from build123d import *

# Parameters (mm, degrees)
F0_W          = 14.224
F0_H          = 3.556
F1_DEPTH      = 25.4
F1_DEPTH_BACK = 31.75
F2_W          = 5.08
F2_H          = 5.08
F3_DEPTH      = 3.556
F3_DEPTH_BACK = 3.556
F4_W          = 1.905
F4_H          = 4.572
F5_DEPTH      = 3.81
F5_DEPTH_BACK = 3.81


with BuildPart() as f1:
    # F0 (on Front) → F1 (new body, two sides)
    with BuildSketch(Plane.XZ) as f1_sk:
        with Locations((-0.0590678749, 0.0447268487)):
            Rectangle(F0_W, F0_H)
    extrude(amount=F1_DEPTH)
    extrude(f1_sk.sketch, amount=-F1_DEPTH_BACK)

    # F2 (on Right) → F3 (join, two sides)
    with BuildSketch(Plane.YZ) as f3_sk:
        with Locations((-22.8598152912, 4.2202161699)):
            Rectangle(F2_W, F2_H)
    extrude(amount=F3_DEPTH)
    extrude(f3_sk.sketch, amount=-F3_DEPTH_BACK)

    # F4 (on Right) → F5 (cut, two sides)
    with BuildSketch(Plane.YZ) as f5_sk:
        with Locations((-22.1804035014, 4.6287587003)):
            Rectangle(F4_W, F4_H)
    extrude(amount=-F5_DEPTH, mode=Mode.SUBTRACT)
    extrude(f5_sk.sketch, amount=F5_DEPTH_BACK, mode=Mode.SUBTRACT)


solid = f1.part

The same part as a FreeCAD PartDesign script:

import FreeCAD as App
import Part
import Sketcher

V = App.Vector
Q = App.Units.Quantity


def add_polygon(sketch, points):
    """Adds a closed chain of lines whose ends are joined by coincident constraints."""
    first, n = sketch.GeometryCount, len(points)
    for a, b in zip(points, points[1:] + points[:1]):
        sketch.addGeometry(Part.LineSegment(App.Vector(*a, 0), App.Vector(*b, 0)), False)
    for i in range(n):
        sketch.addConstraint(Sketcher.Constraint("Coincident", first + i, 2, first + (i + 1) % n, 1))

doc = App.newDocument("Part")
params = doc.addObject("Spreadsheet::Sheet", "Params")
for row, (alias, value) in enumerate([
    ("sketch1_width", "0.56 in"),
    ("sketch1_height", "0.14 in"),
    ("pad1_length", "1 in"),
    ("pad1_length2", "1.25 in"),
    ("sketch2_width", "0.2 in"),
    ("pad2_length", "0.14 in"),
    ("pad2_length2", "0.14 in"),
    ("sketch3_height", "0.18 in"),
    ("sketch3_width", "0.075 in"),
], start=1):
    params.set(f"A{row}", alias)
    params.set(f"B{row}", "=" + value)
    params.setAlias(f"B{row}", alias)

body = doc.addObject("PartDesign::Body", "Body")

sketch1 = body.newObject("Sketcher::SketchObject", "Sketch")
sketch1.AttachmentSupport = (doc.getObject("XZ_Plane"), [""])
sketch1.MapMode = "FlatFace"
add_polygon(sketch1, [(-7.2, 1.8), (-7.2, -1.7), (7.1, -1.7), (7.1, 1.8)])
sketch1.addConstraint(Sketcher.Constraint("Vertical", 0))
sketch1.addConstraint(Sketcher.Constraint("Horizontal", 1))
sketch1.addConstraint(Sketcher.Constraint("Vertical", 2))
sketch1.addConstraint(Sketcher.Constraint("Horizontal", 3))
sketch1.addConstraint(Sketcher.Constraint("DistanceX", 1, 1, 1, 2, Q("0.56 in")))
sketch1.addConstraint(Sketcher.Constraint("DistanceY", 0, 2, 0, 1, Q("0.14 in")))
sketch1.addConstraint(Sketcher.Constraint("DistanceX", 0, 2, -1, 1, 7.171068))
sketch1.addConstraint(Sketcher.Constraint("DistanceY", 0, 2, -1, 1, 1.733273))
sketch1.setExpression("Constraints[8]", "Params.sketch1_width")
sketch1.setExpression("Constraints[9]", "Params.sketch1_height")
pad1 = body.newObject("PartDesign::Pad", "Pad")
pad1.Profile = sketch1
pad1.Type = "TwoLengths"
pad1.setExpression("Length", "Params.pad1_length")
pad1.setExpression("Length2", "Params.pad1_length2")

sketch2 = body.newObject("Sketcher::SketchObject", "Sketch001")
sketch2.AttachmentSupport = (doc.getObject("YZ_Plane"), [""])
sketch2.MapMode = "FlatFace"
add_polygon(sketch2, [(-25, 7), (-25, 2), (-20, 2), (-20, 7)])
sketch2.addConstraint(Sketcher.Constraint("Vertical", 0))
sketch2.addConstraint(Sketcher.Constraint("Horizontal", 1))
sketch2.addConstraint(Sketcher.Constraint("Vertical", 2))
sketch2.addConstraint(Sketcher.Constraint("Horizontal", 3))
sketch2.addConstraint(Sketcher.Constraint("Equal", 3, 0))
sketch2.addConstraint(Sketcher.Constraint("DistanceX", 1, 1, 1, 2, Q("0.2 in")))
sketch2.addConstraint(Sketcher.Constraint("DistanceX", 0, 2, -1, 1, 25.399815))
sketch2.addConstraint(Sketcher.Constraint("DistanceY", -1, 1, 0, 2, 1.680216))
sketch2.setExpression("Constraints[9]", "Params.sketch2_width")
pad2 = body.newObject("PartDesign::Pad", "Pad001")
pad2.Profile = sketch2
pad2.Type = "TwoLengths"
pad2.setExpression("Length", "Params.pad2_length")
pad2.setExpression("Length2", "Params.pad2_length2")

sketch3 = body.newObject("Sketcher::SketchObject", "Sketch002")
sketch3.AttachmentSupport = (doc.getObject("YZ_Plane"), [""])
sketch3.MapMode = "FlatFace"
add_polygon(sketch3, [(-23.1, 6.9), (-23.1, 2.3), (-21.2, 2.3), (-21.2, 6.9)])
sketch3.addConstraint(Sketcher.Constraint("Vertical", 0))
sketch3.addConstraint(Sketcher.Constraint("Horizontal", 1))
sketch3.addConstraint(Sketcher.Constraint("Vertical", 2))
sketch3.addConstraint(Sketcher.Constraint("Horizontal", 3))
sketch3.addConstraint(Sketcher.Constraint("DistanceY", 0, 2, 0, 1, Q("0.18 in")))
sketch3.addConstraint(Sketcher.Constraint("DistanceX", 1, 1, 1, 2, Q("0.075 in")))
sketch3.addConstraint(Sketcher.Constraint("DistanceY", -1, 1, 0, 2, 2.342759))
sketch3.addConstraint(Sketcher.Constraint("DistanceX", 0, 2, -1, 1, 23.132904))
sketch3.setExpression("Constraints[8]", "Params.sketch3_height")
sketch3.setExpression("Constraints[9]", "Params.sketch3_width")
pocket1 = body.newObject("PartDesign::Pocket", "Pocket")
pocket1.Profile = sketch3
pocket1.Type = "ThroughAll"
pocket1.Midplane = True

doc.recompute()
